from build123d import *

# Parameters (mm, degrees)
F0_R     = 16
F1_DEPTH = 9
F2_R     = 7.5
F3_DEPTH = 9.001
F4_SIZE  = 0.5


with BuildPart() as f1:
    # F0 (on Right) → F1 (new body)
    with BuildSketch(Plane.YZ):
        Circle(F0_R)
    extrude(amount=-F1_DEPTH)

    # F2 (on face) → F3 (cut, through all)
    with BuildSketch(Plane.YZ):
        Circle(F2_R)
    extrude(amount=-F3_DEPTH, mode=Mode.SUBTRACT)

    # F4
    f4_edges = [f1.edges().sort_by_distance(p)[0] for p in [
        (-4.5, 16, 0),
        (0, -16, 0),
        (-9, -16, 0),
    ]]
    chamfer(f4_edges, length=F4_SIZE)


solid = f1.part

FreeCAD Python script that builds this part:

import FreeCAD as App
import Part
import Sketcher
Q = App.Units.Quantity


def edges_at(feature, points):
    """Names of the edges that pass closest to the given points."""
    edges = feature.Shape.Edges
    near = lambda p: min(range(len(edges)), key=lambda i: edges[i].distToShape(Part.Vertex(*p))[0])
    return sorted({f"Edge{near(p) + 1}" for p in points})

doc = App.newDocument("Part")
body = doc.addObject("PartDesign::Body", "Body")

sketch1 = body.newObject("Sketcher::SketchObject", "Sketch")
sketch1.AttachmentSupport = (doc.getObject("YZ_Plane"), [""])
sketch1.MapMode = "FlatFace"
sketch1.addGeometry(Part.Circle(App.Vector(0, 0, 0), App.Vector(0, 0, 1), 16), False)
sketch1.addConstraint([
    Sketcher.Constraint("Coincident", 0, 3, -1, 1),
    Sketcher.Constraint("Diameter", 0, Q("32 mm")),
])
pad1 = body.newObject("PartDesign::Pad", "Pad")
pad1.Profile = sketch1
pad1.Length = 9
pad1.Reversed = True

sketch2 = body.newObject("Sketcher::SketchObject", "Sketch001")
sketch2.AttachmentSupport = (doc.getObject("YZ_Plane"), [""])
sketch2.MapMode = "FlatFace"
sketch2.addGeometry(Part.Circle(App.Vector(0, 0, 0), App.Vector(0, 0, 1), 7.5), False)
sketch2.addConstraint([
    Sketcher.Constraint("Coincident", 0, 3, -1, 1),
    Sketcher.Constraint("Diameter", 0, Q("15 mm")),
])
pocket1 = body.newObject("PartDesign::Pocket", "Pocket")
pocket1.Profile = sketch2
pocket1.Type = "ThroughAll"
doc.recompute()

chamfer = body.newObject("PartDesign::Chamfer", "Chamfer")
chamfer.Base = (pocket1, edges_at(pocket1, [(-4.5, 16, 0), (0, -16, 0), (-9, -16, 0)]))
chamfer.Size = 0.5

doc.recompute()
